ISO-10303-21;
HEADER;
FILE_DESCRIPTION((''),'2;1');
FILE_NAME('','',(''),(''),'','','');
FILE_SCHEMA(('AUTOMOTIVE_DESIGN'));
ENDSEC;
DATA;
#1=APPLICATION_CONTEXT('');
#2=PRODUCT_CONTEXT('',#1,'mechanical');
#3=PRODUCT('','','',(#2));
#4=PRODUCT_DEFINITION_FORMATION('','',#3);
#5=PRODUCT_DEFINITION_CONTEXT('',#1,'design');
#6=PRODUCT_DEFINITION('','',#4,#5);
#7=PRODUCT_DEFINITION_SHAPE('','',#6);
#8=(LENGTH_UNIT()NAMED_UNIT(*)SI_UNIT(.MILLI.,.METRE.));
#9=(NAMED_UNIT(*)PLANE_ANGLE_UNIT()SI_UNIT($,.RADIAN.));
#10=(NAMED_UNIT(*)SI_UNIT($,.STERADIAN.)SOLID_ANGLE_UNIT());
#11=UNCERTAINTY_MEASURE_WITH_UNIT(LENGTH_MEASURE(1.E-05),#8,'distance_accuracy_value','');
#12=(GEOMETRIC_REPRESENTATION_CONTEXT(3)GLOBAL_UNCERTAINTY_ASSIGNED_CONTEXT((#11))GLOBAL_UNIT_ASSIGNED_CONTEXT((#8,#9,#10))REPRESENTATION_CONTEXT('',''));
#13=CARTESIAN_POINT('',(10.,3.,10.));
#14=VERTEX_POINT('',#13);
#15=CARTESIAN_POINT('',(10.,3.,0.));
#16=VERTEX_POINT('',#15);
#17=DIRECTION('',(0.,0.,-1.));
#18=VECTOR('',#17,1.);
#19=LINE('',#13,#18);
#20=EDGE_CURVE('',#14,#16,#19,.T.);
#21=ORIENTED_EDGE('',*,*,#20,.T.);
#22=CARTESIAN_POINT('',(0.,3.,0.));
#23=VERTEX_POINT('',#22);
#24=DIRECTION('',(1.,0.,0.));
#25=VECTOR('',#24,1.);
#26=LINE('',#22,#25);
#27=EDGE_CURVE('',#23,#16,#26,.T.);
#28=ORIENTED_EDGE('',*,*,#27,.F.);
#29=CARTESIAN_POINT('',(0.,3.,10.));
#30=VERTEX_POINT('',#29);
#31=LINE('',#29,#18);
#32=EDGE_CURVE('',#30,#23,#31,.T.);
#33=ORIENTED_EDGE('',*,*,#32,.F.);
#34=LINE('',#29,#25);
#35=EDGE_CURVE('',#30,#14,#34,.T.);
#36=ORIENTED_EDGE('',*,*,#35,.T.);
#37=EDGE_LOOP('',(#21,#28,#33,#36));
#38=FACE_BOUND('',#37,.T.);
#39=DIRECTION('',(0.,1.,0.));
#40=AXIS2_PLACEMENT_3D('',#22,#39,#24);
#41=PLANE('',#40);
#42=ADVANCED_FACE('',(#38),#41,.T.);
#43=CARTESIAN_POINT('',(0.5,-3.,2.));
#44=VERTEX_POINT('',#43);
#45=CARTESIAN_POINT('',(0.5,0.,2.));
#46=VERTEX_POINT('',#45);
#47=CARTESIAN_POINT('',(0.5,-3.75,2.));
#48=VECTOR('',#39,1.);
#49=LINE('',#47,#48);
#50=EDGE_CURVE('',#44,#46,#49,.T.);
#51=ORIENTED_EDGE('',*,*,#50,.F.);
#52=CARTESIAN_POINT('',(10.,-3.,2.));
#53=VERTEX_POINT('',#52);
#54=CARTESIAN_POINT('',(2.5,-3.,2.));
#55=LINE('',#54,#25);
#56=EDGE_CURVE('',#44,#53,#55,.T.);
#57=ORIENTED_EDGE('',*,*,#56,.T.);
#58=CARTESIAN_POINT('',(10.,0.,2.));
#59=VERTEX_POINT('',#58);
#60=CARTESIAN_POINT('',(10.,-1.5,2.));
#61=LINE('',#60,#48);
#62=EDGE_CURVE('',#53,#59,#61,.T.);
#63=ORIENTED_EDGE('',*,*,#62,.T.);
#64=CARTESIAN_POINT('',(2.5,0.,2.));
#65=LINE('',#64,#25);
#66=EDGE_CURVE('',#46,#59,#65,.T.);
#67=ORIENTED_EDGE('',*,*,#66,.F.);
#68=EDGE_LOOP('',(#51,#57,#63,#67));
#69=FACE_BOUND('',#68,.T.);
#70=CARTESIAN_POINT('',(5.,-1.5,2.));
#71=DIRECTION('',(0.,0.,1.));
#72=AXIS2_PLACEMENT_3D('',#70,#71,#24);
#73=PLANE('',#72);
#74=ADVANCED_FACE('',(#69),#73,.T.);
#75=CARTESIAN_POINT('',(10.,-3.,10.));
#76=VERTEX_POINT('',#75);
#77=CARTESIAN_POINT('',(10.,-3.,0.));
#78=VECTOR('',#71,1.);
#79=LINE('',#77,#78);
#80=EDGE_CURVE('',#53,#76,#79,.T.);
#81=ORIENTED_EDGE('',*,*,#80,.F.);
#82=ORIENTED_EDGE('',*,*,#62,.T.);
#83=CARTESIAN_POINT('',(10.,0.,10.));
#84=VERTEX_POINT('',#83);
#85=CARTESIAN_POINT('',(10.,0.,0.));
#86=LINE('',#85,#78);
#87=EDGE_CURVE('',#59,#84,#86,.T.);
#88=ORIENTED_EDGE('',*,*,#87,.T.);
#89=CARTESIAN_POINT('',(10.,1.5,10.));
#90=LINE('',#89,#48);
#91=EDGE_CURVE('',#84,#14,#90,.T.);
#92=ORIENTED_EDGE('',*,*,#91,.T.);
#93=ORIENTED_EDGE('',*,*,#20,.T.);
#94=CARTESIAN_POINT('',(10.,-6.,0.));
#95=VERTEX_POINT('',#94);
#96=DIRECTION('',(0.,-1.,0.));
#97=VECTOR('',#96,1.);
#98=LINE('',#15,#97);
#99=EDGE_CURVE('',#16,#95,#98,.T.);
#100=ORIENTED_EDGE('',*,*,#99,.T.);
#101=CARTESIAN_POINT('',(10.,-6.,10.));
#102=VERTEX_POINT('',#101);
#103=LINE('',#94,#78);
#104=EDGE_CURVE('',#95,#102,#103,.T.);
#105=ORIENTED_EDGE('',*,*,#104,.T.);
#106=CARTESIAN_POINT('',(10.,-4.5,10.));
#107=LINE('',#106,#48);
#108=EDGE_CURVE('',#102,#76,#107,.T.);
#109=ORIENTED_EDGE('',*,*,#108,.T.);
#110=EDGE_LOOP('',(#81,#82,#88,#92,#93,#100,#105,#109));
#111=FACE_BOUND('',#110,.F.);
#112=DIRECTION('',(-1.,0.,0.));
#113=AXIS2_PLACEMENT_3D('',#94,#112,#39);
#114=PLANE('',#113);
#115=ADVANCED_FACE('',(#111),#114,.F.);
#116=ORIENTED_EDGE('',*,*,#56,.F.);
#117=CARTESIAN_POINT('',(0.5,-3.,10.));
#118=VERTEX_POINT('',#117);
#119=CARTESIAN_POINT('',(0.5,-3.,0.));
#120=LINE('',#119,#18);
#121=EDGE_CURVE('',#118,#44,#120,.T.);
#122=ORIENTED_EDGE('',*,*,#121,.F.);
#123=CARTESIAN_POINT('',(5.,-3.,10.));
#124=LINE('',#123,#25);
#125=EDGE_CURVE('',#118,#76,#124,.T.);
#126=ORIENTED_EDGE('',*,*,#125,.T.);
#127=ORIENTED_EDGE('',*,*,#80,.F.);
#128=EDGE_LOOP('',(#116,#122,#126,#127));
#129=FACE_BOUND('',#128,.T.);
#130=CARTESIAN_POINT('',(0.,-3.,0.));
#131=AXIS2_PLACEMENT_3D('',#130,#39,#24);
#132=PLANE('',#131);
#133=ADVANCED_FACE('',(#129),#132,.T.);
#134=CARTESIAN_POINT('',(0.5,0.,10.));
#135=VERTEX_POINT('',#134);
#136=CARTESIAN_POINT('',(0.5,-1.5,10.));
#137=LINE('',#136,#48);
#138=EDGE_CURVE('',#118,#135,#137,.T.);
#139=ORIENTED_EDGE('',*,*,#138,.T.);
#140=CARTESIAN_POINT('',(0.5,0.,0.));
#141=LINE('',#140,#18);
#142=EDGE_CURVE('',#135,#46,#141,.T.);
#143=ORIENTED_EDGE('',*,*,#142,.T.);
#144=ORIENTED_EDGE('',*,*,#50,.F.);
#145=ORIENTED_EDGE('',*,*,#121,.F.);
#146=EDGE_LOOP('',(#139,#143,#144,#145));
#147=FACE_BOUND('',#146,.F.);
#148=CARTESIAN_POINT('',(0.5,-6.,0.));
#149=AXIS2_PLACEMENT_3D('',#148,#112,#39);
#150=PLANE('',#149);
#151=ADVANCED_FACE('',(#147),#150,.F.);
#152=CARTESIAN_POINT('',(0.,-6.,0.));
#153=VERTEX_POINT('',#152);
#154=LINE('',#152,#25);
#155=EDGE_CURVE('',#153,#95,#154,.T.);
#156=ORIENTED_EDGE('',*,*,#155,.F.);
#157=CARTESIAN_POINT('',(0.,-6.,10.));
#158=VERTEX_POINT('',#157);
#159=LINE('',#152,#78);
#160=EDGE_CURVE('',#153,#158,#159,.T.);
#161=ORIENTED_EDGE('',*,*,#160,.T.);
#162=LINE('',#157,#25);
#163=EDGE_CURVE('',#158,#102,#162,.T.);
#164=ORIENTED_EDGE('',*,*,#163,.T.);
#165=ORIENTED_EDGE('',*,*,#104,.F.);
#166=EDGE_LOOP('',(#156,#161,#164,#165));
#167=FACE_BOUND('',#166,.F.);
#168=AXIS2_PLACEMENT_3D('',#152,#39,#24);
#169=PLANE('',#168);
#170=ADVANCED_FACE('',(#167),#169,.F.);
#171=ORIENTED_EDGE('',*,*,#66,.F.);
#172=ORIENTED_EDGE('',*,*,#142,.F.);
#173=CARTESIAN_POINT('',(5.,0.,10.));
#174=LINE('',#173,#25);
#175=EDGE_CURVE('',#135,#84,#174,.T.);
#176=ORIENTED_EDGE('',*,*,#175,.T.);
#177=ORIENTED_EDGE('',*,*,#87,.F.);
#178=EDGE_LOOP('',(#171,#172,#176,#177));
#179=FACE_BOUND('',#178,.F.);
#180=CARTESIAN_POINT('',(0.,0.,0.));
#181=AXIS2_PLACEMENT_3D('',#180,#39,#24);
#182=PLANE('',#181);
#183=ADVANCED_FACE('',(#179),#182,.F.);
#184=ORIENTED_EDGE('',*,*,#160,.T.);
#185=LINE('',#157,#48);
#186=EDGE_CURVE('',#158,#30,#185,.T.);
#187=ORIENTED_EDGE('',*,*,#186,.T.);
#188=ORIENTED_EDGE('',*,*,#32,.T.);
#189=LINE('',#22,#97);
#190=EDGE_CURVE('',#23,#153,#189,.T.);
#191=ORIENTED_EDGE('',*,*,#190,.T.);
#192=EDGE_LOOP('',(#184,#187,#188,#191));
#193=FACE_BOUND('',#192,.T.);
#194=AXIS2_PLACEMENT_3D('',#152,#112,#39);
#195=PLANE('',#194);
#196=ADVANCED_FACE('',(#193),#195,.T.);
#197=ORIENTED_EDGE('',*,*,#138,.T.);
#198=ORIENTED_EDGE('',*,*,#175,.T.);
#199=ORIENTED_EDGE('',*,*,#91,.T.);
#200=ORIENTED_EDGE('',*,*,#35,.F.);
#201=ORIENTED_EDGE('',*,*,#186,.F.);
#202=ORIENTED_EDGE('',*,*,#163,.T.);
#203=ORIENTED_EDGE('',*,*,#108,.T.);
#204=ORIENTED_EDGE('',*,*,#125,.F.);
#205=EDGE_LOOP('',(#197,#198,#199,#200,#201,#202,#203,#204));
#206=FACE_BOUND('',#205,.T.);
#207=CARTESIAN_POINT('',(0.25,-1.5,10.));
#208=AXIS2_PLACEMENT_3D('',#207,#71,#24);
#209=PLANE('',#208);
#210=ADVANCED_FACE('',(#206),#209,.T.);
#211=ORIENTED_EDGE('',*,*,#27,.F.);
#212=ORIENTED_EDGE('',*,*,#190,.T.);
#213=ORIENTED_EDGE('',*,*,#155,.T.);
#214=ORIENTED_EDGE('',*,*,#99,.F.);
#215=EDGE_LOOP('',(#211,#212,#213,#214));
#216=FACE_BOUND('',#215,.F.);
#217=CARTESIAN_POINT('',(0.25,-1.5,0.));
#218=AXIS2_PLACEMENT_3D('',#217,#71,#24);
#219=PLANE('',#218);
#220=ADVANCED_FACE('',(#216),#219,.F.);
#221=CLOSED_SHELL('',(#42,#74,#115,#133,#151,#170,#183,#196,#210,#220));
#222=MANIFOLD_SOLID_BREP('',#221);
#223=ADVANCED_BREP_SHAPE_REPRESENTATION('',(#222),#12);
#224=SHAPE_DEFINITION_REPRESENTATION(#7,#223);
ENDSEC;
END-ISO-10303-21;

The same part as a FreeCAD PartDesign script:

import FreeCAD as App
import Part
import Sketcher

V = App.Vector
Q = App.Units.Quantity


def add_polygon(sketch, points):
    """Adds a closed chain of lines whose ends are joined by coincident constraints."""
    first, n = sketch.GeometryCount, len(points)
    for a, b in zip(points, points[1:] + points[:1]):
        sketch.addGeometry(Part.LineSegment(App.Vector(*a, 0), App.Vector(*b, 0)), False)
    for i in range(n):
        sketch.addConstraint(Sketcher.Constraint("Coincident", first + i, 2, first + (i + 1) % n, 1))

doc = App.newDocument("Part")
params = doc.addObject("Spreadsheet::Sheet", "Params")
for row, (alias, value) in enumerate([
    ("sketch1_width", "10 mm"),
    ("sketch1_height", "3 mm"),
    ("pad1_length", "10 mm"),
    ("sketch2_width", "10 mm"),
    ("sketch2_height", "3 mm"),
    ("pad2_length", "10 mm"),
    ("sketch3_width", "10 mm"),
    ("sketch3_height", "9 mm"),
    ("pad3_length", "2 mm"),
    ("sketch4_height", "9 mm"),
    ("sketch4_width", "0.5 mm"),
    ("pad4_length", "10 mm"),
], start=1):
    params.set(f"A{row}", alias)
    params.set(f"B{row}", "=" + value)
    params.setAlias(f"B{row}", alias)

body = doc.addObject("PartDesign::Body", "Body")

sketch1 = doc.addObject("Sketcher::SketchObject", "Sketch")
body.addObject(sketch1)
sketch1.AttachmentSupport = (doc.XY_Plane, [""])
sketch1.MapMode = "FlatFace"
add_polygon(sketch1, [(0, 3), (0, 0), (10, 0), (10, 3)])
sketch1.addConstraint(Sketcher.Constraint("Vertical", 0))
sketch1.addConstraint(Sketcher.Constraint("Horizontal", 1))
sketch1.addConstraint(Sketcher.Constraint("Vertical", 2))
sketch1.addConstraint(Sketcher.Constraint("Horizontal", 3))
sketch1.addConstraint(Sketcher.Constraint("Coincident", 0, 2, -1, 1))
sketch1.addConstraint(Sketcher.Constraint("DistanceX", 1, 1, 1, 2, Q("10 mm")))
sketch1.addConstraint(Sketcher.Constraint("DistanceY", 0, 2, 0, 1, Q("3 mm")))
sketch1.setExpression("Constraints[9]", "Params.sketch1_width")
sketch1.setExpression("Constraints[10]", "Params.sketch1_height")
pad1 = doc.addObject("PartDesign::Pad", "Pad")
body.addObject(pad1)
pad1.Profile = sketch1
pad1.setExpression("Length", "Params.pad1_length")
body2 = doc.addObject("PartDesign::Body", "Body001")

sketch2 = doc.addObject("Sketcher::SketchObject", "Sketch001")
body2.addObject(sketch2)
sketch2.AttachmentSupport = (doc.getObject("XY_Plane001"), [""])
sketch2.MapMode = "FlatFace"
add_polygon(sketch2, [(0, -3), (0, -6), (10, -6), (10, -3)])
sketch2.addConstraint(Sketcher.Constraint("Vertical", 0))
sketch2.addConstraint(Sketcher.Constraint("Horizontal", 1))
sketch2.addConstraint(Sketcher.Constraint("Vertical", 2))
sketch2.addConstraint(Sketcher.Constraint("Horizontal", 3))
sketch2.addConstraint(Sketcher.Constraint("PointOnObject", 0, 2, -2))
sketch2.addConstraint(Sketcher.Constraint("DistanceX", 1, 1, 1, 2, Q("10 mm")))
sketch2.addConstraint(Sketcher.Constraint("DistanceY", 0, 2, 0, 1, Q("3 mm")))
sketch2.addConstraint(Sketcher.Constraint("DistanceY", 0, 2, -1, 1, Q("6 mm")))
sketch2.setExpression("Constraints[9]", "Params.sketch2_width")
sketch2.setExpression("Constraints[10]", "Params.sketch2_height")
pad2 = doc.addObject("PartDesign::Pad", "Pad001")
body2.addObject(pad2)
pad2.Profile = sketch2
pad2.setExpression("Length", "Params.pad2_length")
body3 = doc.addObject("PartDesign::Body", "Body002")

sketch3 = doc.addObject("Sketcher::SketchObject", "Sketch002")
body3.addObject(sketch3)
sketch3.AttachmentSupport = (doc.getObject("XY_Plane002"), [""])
sketch3.MapMode = "FlatFace"
add_polygon(sketch3, [(0, 3), (0, -6), (10, -6), (10, 3)])
sketch3.addConstraint(Sketcher.Constraint("Vertical", 0))
sketch3.addConstraint(Sketcher.Constraint("Horizontal", 1))
sketch3.addConstraint(Sketcher.Constraint("Vertical", 2))
sketch3.addConstraint(Sketcher.Constraint("Horizontal", 3))
sketch3.addConstraint(Sketcher.Constraint("PointOnObject", 0, 2, -2))
sketch3.addConstraint(Sketcher.Constraint("DistanceX", 1, 1, 1, 2, Q("10 mm")))
sketch3.addConstraint(Sketcher.Constraint("DistanceY", 0, 2, 0, 1, Q("9 mm")))
sketch3.addConstraint(Sketcher.Constraint("DistanceY", 0, 2, -1, 1, Q("6 mm")))
sketch3.setExpression("Constraints[9]", "Params.sketch3_width")
sketch3.setExpression("Constraints[10]", "Params.sketch3_height")
pad3 = doc.addObject("PartDesign::Pad", "Pad002")
body3.addObject(pad3)
pad3.Profile = sketch3
pad3.setExpression("Length", "Params.pad3_length")
body4 = doc.addObject("PartDesign::Body", "Body003")

sketch4 = doc.addObject("Sketcher::SketchObject", "Sketch003")
body4.addObject(sketch4)
sketch4.AttachmentSupport = (doc.getObject("XY_Plane003"), [""])
sketch4.MapMode = "FlatFace"
add_polygon(sketch4, [(0, 3), (0, -6), (0.5, -6), (0.5, 3)])
sketch4.addConstraint(Sketcher.Constraint("Vertical", 0))
sketch4.addConstraint(Sketcher.Constraint("Horizontal", 1))
sketch4.addConstraint(Sketcher.Constraint("Vertical", 2))
sketch4.addConstraint(Sketcher.Constraint("Horizontal", 3))
sketch4.addConstraint(Sketcher.Constraint("PointOnObject", 0, 2, -2))
sketch4.addConstraint(Sketcher.Constraint("DistanceY", 0, 2, 0, 1, Q("9 mm")))
sketch4.addConstraint(Sketcher.Constraint("DistanceX", 1, 1, 1, 2, Q("0.5 mm")))
sketch4.addConstraint(Sketcher.Constraint("DistanceY", 0, 2, -1, 1, Q("6 mm")))
sketch4.setExpression("Constraints[9]", "Params.sketch4_height")
sketch4.setExpression("Constraints[10]", "Params.sketch4_width")
pad4 = doc.addObject("PartDesign::Pad", "Pad003")
body4.addObject(pad4)
pad4.Profile = sketch4
pad4.setExpression("Length", "Params.pad4_length")
doc.recompute()

boolean = doc.addObject("PartDesign::Boolean", "Boolean")
body4.addObject(boolean)
boolean.Type = "Fuse"
boolean.addObjects([body])
doc.recompute()

boolean2 = doc.addObject("PartDesign::Boolean", "Boolean001")
body4.addObject(boolean2)
boolean2.Type = "Fuse"
boolean2.addObjects([body2])
doc.recompute()

boolean3 = doc.addObject("PartDesign::Boolean", "Boolean002")
body4.addObject(boolean3)
boolean3.Type = "Fuse"
boolean3.addObjects([body3])

doc.recompute()
